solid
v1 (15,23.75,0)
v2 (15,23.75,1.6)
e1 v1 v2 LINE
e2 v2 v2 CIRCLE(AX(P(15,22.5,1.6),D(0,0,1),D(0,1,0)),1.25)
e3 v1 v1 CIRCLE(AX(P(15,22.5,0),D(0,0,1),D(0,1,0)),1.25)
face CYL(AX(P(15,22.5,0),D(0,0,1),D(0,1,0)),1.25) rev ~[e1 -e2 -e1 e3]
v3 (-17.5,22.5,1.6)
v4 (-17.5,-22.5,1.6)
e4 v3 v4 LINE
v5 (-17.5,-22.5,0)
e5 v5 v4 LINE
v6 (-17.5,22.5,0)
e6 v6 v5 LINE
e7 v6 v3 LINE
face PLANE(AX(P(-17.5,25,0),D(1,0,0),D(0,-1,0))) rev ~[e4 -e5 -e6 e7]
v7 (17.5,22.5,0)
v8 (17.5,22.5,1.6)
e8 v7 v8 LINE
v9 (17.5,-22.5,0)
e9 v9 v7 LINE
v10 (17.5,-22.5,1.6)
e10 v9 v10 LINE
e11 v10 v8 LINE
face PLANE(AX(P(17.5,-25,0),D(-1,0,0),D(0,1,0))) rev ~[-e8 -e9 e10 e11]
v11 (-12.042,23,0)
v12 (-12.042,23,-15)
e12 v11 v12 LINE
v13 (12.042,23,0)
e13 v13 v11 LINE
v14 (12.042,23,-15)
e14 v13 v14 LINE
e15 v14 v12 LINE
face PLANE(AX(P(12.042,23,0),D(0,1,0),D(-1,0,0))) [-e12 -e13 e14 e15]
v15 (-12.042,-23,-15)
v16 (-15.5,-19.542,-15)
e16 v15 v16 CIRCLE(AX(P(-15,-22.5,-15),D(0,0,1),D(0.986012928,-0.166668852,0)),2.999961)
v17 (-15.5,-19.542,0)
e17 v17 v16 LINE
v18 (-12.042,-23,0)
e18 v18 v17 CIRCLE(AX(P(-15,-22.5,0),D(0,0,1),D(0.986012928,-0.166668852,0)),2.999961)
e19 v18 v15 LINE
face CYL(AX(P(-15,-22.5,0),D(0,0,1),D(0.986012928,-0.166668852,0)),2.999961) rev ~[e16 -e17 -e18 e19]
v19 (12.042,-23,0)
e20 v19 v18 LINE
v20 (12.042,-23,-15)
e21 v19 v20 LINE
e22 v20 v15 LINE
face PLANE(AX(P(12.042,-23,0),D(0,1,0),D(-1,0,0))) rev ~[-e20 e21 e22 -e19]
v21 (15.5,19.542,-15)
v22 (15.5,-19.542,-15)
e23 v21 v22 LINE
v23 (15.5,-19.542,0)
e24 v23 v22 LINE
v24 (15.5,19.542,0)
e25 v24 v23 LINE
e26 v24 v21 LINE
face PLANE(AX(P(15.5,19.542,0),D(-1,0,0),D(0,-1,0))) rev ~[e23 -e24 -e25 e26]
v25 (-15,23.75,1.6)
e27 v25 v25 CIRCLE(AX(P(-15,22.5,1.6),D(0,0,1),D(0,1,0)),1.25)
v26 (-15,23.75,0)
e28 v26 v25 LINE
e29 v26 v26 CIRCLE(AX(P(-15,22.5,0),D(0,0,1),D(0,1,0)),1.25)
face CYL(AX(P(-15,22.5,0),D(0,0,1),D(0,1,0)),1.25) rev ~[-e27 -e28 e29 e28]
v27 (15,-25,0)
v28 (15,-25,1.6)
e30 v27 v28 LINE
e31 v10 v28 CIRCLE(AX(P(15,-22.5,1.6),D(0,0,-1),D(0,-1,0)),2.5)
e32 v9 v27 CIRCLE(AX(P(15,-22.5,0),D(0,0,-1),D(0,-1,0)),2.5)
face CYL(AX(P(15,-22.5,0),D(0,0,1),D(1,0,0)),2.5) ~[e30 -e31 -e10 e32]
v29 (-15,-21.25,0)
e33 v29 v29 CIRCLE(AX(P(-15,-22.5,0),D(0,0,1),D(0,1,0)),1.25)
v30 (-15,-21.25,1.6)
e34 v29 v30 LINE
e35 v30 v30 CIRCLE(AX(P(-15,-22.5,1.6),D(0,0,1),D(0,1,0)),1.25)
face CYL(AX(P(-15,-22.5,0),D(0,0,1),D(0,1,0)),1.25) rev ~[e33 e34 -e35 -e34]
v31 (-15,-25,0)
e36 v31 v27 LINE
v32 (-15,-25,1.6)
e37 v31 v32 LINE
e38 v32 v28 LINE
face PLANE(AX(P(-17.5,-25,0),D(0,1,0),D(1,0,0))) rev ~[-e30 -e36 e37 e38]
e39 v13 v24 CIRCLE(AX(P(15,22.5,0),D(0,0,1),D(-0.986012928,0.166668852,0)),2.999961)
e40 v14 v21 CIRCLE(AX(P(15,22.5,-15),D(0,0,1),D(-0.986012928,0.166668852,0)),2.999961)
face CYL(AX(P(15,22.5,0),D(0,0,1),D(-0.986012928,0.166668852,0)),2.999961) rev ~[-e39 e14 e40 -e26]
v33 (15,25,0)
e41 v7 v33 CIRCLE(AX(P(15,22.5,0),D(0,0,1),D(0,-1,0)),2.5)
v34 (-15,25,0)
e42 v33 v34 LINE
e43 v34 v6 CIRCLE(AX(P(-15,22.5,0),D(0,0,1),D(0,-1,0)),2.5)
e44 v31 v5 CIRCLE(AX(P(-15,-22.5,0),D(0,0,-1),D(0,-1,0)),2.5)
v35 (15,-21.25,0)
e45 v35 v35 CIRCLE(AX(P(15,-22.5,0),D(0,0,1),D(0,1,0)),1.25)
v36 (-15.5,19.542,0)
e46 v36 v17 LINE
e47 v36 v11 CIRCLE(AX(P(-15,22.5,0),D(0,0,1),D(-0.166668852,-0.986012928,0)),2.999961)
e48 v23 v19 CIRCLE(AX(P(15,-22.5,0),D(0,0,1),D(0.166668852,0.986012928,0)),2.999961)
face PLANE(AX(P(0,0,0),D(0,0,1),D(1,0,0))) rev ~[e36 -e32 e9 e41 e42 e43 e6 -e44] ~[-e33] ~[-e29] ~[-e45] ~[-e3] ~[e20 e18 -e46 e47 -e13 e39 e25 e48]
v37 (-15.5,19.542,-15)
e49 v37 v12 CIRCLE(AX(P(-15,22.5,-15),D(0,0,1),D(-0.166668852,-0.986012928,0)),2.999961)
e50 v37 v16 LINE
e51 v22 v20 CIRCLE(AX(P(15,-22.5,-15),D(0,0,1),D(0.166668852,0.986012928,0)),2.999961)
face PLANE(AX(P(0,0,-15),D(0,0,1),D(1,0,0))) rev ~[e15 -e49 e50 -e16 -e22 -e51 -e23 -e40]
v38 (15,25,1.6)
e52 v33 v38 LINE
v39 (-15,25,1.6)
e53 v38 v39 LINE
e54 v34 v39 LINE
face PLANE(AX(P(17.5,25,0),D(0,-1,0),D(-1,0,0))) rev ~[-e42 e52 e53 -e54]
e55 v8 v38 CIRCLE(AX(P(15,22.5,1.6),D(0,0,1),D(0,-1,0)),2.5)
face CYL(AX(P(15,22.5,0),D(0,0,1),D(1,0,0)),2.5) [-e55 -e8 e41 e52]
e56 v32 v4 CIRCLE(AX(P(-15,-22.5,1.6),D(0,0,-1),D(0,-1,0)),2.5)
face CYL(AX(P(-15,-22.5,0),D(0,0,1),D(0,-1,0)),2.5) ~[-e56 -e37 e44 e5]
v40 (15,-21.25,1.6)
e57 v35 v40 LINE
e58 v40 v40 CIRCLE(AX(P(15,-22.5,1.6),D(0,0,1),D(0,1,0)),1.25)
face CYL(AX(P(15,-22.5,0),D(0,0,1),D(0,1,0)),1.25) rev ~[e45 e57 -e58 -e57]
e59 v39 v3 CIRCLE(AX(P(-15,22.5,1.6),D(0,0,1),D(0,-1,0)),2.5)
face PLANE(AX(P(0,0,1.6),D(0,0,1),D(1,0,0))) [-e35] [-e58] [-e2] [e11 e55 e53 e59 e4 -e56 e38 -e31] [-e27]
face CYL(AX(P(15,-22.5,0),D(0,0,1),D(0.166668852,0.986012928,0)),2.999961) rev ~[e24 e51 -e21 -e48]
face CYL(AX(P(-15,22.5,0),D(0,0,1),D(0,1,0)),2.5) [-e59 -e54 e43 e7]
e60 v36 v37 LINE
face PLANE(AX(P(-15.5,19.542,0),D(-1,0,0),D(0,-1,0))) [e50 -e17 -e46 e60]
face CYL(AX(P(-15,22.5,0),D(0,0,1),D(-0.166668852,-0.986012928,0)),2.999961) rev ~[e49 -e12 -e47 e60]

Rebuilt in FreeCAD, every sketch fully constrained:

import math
import FreeCAD as App
import Part
import Sketcher


def edges_at(feature, points):
    """Names of the edges that pass closest to the given points."""
    edges = feature.Shape.Edges
    near = lambda p: min(range(len(edges)), key=lambda i: edges[i].distToShape(Part.Vertex(*p))[0])
    return sorted({f"Edge{near(p) + 1}" for p in points})


def add_polygon(sketch, points):
    """Adds a closed chain of lines whose ends are joined by coincident constraints."""
    first, n = sketch.GeometryCount, len(points)
    for a, b in zip(points, points[1:] + points[:1]):
        sketch.addGeometry(Part.LineSegment(App.Vector(*a, 0), App.Vector(*b, 0)), False)
    for i in range(n):
        sketch.addConstraint(Sketcher.Constraint("Coincident", first + i, 2, first + (i + 1) % n, 1))

doc = App.newDocument("Part")
body = doc.addObject("PartDesign::Body", "Body")

# Sketch on XY plane
sketch1 = body.newObject("Sketcher::SketchObject", "Sketch")
sketch1.AttachmentSupport = (doc.getObject("XY_Plane"), [""])
sketch1.MapMode = "FlatFace"
add_polygon(sketch1, [(18, -25), (18, 25), (-18, 25), (-18, -25)])  # lines 0-3
sketch1.addConstraint([
    Sketcher.Constraint("Vertical", 0),
    Sketcher.Constraint("Horizontal", 1),
    Sketcher.Constraint("Vertical", 2),
    Sketcher.Constraint("Horizontal", 3),
    Sketcher.Constraint("Symmetric", 0, 2, 2, 2, -1, 1),
    Sketcher.Constraint("DistanceX", 1, 2, 1, 1, 35.0),
    Sketcher.Constraint("DistanceY", 0, 1, 0, 2, 50.0),
])
pad1 = body.newObject("PartDesign::Pad", "Pad")
pad1.Profile = sketch1
pad1.Length = 1.6

# Sketch on XY plane
sketch2 = body.newObject("Sketcher::SketchObject", "Sketch001")
sketch2.AttachmentSupport = (doc.getObject("XY_Plane"), [""])
sketch2.MapMode = "FlatFace"
sketch2.addGeometry([
    Part.Circle(App.Vector(-15, -22.5, 0), App.Vector(0, 0, 1), 1.2),
    Part.Circle(App.Vector(-15, 22.5, 0), App.Vector(0, 0, 1), 1.2),
    Part.Circle(App.Vector(15, 22.5, 0), App.Vector(0, 0, 1), 1.2),
    Part.Circle(App.Vector(15, -22.5, 0), App.Vector(0, 0, 1), 1.2),
], False)
sketch2.addConstraint([
    Sketcher.Constraint("Equal", 0, 1),
    Sketcher.Constraint("Equal", 1, 2),
    Sketcher.Constraint("Equal", 2, 3),
    Sketcher.Constraint("Symmetric", 0, 3, 2, 3, -1, 1),
    Sketcher.Constraint("Symmetric", 1, 3, 3, 3, -1, 1),
    Sketcher.Constraint("Symmetric", 1, 3, 2, 3, -2),
    Sketcher.Constraint("Diameter", 0, 2.5),
    Sketcher.Constraint("DistanceX", 0, 3, -1, 1, 15.0),
    Sketcher.Constraint("DistanceY", 0, 3, 1, 3, 45.0),
])
doc.recompute()
hole = body.newObject("PartDesign::Hole", "Hole")
hole.Profile = sketch2
hole.ThreadType = "None"
hole.Diameter = 2.5
hole.DepthType = "ThroughAll"
hole.Reversed = True
doc.recompute()

fillet = body.newObject("PartDesign::Fillet", "Fillet")
fillet.Base = (hole, edges_at(hole, [
    (17.5, -25, 0.8),
    (-17.5, -25, 0.8),
    (-17.5, 25, 0.8),
    (17.5, 25, 0.8),
]))
fillet.Radius = 2.5

# Sketch on XY plane
sketch3 = body.newObject("Sketcher::SketchObject", "Sketch002")
sketch3.AttachmentSupport = (doc.getObject("XY_Plane"), [""])
sketch3.MapMode = "FlatFace"
sketch3.addGeometry([
    Part.ArcOfCircle(Part.Circle(App.Vector(15, 22.5, 0), App.Vector(0, 0, 1), 3), math.radians(170), math.radians(280)),  # 0
    Part.LineSegment(App.Vector(12, 23, 0), App.Vector(-12, 23, 0)),  # 1
    Part.ArcOfCircle(Part.Circle(App.Vector(-15, 22.5, 0), App.Vector(0, 0, 1), 3), math.radians(-100), math.radians(10)),  # 2
    Part.LineSegment(App.Vector(-15.5, 19.5, 0), App.Vector(-15.5, -19.5, 0)),  # 3
    Part.ArcOfCircle(Part.Circle(App.Vector(-15, -22.5, 0), App.Vector(0, 0, 1), 3), math.radians(-10), math.radians(100)),  # 4
    Part.LineSegment(App.Vector(-12, -23, 0), App.Vector(12, -23, 0)),  # 5
    Part.ArcOfCircle(Part.Circle(App.Vector(15, -22.5, 0), App.Vector(0, 0, 1), 3), math.radians(80), math.radians(190)),  # 6
    Part.LineSegment(App.Vector(15.5, -19.5, 0), App.Vector(15.5, 19.5, 0)),  # 7
], False)
sketch3.addConstraint([
    Sketcher.Constraint("Coincident", 0, 1, 1, 1),
    Sketcher.Constraint("Coincident", 1, 2, 2, 2),
    Sketcher.Constraint("Coincident", 2, 1, 3, 1),
    Sketcher.Constraint("Coincident", 3, 2, 4, 2),
    Sketcher.Constraint("Coincident", 4, 1, 5, 1),
    Sketcher.Constraint("Coincident", 5, 2, 6, 2),
    Sketcher.Constraint("Coincident", 6, 1, 7, 1),
    Sketcher.Constraint("Coincident", 7, 2, 0, 2),
    Sketcher.Constraint("Horizontal", 1),
    Sketcher.Constraint("Vertical", 3),
    Sketcher.Constraint("Horizontal", 5),
    Sketcher.Constraint("Vertical", 7),
    Sketcher.Constraint("Equal", 0, 2),
    Sketcher.Constraint("Equal", 2, 4),
    Sketcher.Constraint("Equal", 4, 6),
    Sketcher.Constraint("Symmetric", 0, 3, 4, 3, -1, 1),
    Sketcher.Constraint("Symmetric", 2, 3, 6, 3, -1, 1),
    Sketcher.Constraint("Symmetric", 0, 3, 2, 3, -2),
    Sketcher.Constraint("Horizontal", 3, 2, 6, 1),
    Sketcher.Constraint("Vertical", 1, 2, 4, 1),
    Sketcher.Constraint("Radius", 0, 3.0),
    Sketcher.Constraint("DistanceX", -1, 1, 0, 3, 15.0),
    Sketcher.Constraint("DistanceY", -1, 1, 0, 1, 23.0),
    Sketcher.Constraint("DistanceY", 4, 3, 2, 3, 45.0),
    Sketcher.Constraint("DistanceX", 3, 2, 6, 1, 31.0),
])
pad2 = body.newObject("PartDesign::Pad", "Pad001")
pad2.Profile = sketch3
pad2.Length = 15
pad2.Reversed = True

doc.recompute()
